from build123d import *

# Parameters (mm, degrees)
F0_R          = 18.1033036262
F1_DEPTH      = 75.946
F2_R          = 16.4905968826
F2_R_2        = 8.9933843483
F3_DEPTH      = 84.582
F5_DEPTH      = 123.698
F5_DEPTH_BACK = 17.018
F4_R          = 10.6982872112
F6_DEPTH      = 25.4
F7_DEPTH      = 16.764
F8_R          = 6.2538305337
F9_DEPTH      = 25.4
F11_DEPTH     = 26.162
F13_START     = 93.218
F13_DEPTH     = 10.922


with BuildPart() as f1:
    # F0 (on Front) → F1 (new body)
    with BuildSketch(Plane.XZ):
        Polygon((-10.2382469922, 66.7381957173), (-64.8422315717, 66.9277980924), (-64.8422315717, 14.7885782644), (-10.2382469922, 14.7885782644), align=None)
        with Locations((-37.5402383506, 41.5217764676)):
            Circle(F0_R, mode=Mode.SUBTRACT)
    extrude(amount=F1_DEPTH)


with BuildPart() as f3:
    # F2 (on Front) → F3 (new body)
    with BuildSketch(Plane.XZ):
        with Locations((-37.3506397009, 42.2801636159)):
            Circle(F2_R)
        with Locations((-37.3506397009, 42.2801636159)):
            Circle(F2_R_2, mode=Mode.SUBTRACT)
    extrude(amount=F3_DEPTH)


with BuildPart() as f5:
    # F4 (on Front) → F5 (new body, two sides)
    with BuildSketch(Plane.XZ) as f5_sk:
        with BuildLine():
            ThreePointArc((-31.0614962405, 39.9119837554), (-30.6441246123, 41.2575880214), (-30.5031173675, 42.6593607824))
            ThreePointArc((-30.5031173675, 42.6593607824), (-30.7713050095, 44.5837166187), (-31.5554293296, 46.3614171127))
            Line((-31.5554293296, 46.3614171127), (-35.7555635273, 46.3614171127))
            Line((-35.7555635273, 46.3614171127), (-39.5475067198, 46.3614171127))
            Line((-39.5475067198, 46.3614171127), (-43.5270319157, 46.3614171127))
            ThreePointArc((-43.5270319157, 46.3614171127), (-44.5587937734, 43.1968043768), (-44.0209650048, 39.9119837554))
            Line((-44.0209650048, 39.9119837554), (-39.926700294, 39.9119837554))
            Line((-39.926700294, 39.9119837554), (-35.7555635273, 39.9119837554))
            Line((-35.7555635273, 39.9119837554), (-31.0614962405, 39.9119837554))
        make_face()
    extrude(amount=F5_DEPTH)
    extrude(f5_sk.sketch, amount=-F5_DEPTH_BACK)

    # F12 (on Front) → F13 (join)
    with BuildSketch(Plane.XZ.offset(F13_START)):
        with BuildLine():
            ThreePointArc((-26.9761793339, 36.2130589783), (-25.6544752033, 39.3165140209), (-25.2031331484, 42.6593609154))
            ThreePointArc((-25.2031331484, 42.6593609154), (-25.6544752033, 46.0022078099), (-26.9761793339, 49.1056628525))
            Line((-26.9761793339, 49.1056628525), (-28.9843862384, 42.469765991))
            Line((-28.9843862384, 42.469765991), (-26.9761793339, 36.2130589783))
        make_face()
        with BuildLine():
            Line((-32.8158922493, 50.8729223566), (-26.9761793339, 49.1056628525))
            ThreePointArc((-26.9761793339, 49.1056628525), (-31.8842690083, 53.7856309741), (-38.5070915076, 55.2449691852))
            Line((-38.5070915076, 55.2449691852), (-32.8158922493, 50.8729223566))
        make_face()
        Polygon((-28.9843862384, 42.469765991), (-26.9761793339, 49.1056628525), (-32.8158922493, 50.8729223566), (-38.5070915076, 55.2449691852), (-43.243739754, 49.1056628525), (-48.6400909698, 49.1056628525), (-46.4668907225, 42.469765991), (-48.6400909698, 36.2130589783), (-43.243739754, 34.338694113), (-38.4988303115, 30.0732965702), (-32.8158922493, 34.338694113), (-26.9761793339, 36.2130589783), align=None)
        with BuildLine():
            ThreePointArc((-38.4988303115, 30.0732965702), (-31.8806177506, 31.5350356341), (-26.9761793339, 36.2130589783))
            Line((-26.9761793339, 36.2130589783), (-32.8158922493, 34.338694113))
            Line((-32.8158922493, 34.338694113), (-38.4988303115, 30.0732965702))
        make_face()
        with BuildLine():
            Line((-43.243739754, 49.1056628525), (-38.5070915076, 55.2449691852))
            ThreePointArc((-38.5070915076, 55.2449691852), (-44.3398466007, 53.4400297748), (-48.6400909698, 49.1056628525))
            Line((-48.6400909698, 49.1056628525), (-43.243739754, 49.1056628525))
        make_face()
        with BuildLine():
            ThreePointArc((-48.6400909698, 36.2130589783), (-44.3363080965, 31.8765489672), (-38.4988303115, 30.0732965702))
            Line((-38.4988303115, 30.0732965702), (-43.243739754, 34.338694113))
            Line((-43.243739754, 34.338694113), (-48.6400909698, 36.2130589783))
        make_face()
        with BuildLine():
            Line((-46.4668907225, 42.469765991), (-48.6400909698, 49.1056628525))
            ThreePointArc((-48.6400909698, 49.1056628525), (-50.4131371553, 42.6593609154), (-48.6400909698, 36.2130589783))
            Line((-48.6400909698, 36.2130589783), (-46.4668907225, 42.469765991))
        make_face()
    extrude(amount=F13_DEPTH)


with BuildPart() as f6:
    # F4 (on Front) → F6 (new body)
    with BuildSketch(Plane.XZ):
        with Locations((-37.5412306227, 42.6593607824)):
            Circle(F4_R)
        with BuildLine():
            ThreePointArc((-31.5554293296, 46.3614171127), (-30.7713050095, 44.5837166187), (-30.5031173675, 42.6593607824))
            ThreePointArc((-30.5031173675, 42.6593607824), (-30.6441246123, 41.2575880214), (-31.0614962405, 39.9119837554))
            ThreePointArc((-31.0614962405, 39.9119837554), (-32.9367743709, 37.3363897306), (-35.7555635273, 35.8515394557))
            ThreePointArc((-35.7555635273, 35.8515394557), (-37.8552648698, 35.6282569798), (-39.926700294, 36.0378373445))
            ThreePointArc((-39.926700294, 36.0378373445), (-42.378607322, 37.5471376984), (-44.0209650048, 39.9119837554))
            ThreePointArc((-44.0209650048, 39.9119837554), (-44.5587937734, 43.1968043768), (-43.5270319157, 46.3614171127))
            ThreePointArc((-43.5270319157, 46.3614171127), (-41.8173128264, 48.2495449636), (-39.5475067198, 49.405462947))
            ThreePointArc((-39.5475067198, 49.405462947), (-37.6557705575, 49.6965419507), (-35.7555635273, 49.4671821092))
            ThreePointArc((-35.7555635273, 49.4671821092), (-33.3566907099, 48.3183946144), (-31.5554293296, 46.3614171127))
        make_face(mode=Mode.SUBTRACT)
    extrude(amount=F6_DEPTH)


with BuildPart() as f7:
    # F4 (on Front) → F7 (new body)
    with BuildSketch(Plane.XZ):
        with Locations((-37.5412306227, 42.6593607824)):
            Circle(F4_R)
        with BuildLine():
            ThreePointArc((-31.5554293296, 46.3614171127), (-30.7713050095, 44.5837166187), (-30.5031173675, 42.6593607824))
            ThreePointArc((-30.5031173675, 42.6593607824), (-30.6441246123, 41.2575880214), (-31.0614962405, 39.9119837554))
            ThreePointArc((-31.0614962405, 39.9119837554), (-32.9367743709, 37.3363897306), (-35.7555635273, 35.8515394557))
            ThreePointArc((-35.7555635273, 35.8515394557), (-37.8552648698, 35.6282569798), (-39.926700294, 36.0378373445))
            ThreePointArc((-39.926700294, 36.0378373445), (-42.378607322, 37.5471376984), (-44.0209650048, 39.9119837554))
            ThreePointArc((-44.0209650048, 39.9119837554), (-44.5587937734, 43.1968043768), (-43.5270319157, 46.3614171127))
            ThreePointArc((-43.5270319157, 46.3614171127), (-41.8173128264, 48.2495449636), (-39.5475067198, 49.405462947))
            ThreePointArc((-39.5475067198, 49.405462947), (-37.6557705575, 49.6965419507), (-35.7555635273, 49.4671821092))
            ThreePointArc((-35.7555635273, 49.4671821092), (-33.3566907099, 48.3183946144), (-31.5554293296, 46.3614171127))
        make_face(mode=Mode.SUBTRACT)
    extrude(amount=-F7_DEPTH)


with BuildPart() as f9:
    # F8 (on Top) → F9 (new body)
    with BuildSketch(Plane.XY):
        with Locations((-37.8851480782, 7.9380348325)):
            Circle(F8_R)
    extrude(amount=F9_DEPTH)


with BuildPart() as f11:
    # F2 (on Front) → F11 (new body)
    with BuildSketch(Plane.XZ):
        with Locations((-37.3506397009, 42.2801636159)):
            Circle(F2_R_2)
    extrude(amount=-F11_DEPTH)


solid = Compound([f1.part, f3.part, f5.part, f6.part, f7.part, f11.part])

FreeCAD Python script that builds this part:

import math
import FreeCAD as App
import Part
import Sketcher
Q = App.Units.Quantity


def add_polygon(sketch, points):
    """Adds a closed chain of lines whose ends are joined by coincident constraints."""
    first, n = sketch.GeometryCount, len(points)
    for a, b in zip(points, points[1:] + points[:1]):
        sketch.addGeometry(Part.LineSegment(App.Vector(*a, 0), App.Vector(*b, 0)), False)
    for i in range(n):
        sketch.addConstraint(Sketcher.Constraint("Coincident", first + i, 2, first + (i + 1) % n, 1))

doc = App.newDocument("Part")
body = doc.addObject("PartDesign::Body", "Body")

sketch1 = body.newObject("Sketcher::SketchObject", "Sketch")
sketch1.AttachmentSupport = (doc.getObject("XZ_Plane"), [""])
sketch1.MapMode = "FlatFace"
add_polygon(sketch1, [(-10, 67), (-65, 67), (-65, 15), (-10, 15)])
sketch1.addGeometry(Part.Circle(App.Vector(-38, 42, 0), App.Vector(0, 0, 1), 18), False)
sketch1.addConstraint([
    Sketcher.Constraint("Vertical", 1),
    Sketcher.Constraint("Horizontal", 2),
    Sketcher.Constraint("Vertical", 3),
    Sketcher.Constraint("Diameter", 4, Q("36.206607 mm")),
    Sketcher.Constraint("DistanceY", 1, 2, 1, 1, Q("52.13922 mm")),
    Sketcher.Constraint("DistanceY", -1, 1, 0, 2, Q("66.927798 mm")),
    Sketcher.Constraint("DistanceY", 1, 2, 4, 3, Q("26.733198 mm")),
    Sketcher.Constraint("DistanceX", 2, 1, 2, 2, Q("54.603985 mm")),
    Sketcher.Constraint("DistanceY", 3, 1, 3, 2, Q("51.949617 mm")),
    Sketcher.Constraint("DistanceX", 4, 3, -1, 1, Q("37.540238 mm")),
    Sketcher.Constraint("DistanceX", 0, 2, -1, 1, Q("64.842232 mm")),
])
pad1 = body.newObject("PartDesign::Pad", "Pad")
pad1.Profile = sketch1
pad1.Length = Q("2.99 in")
body2 = doc.addObject("PartDesign::Body", "Body001")

sketch2 = body2.newObject("Sketcher::SketchObject", "Sketch001")
sketch2.AttachmentSupport = (doc.getObject("XZ_Plane001"), [""])
sketch2.MapMode = "FlatFace"
sketch2.addGeometry([
    Part.Circle(App.Vector(-37, 42, 0), App.Vector(0, 0, 1), 16),
    Part.Circle(App.Vector(-37, 42, 0), App.Vector(0, 0, 1), 9),
], False)
sketch2.addConstraint([
    Sketcher.Constraint("Coincident", 1, 3, 0, 3),
    Sketcher.Constraint("Diameter", 1, Q("17.986769 mm")),
    Sketcher.Constraint("Diameter", 0, Q("32.981194 mm")),
    Sketcher.Constraint("DistanceX", 0, 3, -1, 1, Q("37.35064 mm")),
    Sketcher.Constraint("DistanceY", -1, 1, 0, 3, Q("42.280164 mm")),
])
pad2 = body2.newObject("PartDesign::Pad", "Pad001")
pad2.Profile = sketch2
pad2.Length = Q("3.33 in")
body3 = doc.addObject("PartDesign::Body", "Body002")

sketch3 = body3.newObject("Sketcher::SketchObject", "Sketch002")
sketch3.AttachmentSupport = (doc.getObject("XZ_Plane002"), [""])
sketch3.MapMode = "FlatFace"
sketch3.addGeometry([
    Part.ArcOfCircle(Part.Circle(App.Vector(-37.5, 42.7, 0), App.Vector(0, 0, 1), 7), math.radians(-23), math.radians(0)),
    Part.ArcOfCircle(Part.Circle(App.Vector(-37.5, 42.7, 0), App.Vector(0, 0, 1), 7), math.radians(0), math.radians(32)),
    Part.LineSegment(App.Vector(-31.6, 46.4, 0), App.Vector(-43.5, 46.4, 0)),
    Part.ArcOfCircle(Part.Circle(App.Vector(-37.5, 42.7, 0), App.Vector(0, 0, 1), 7), math.radians(148), math.radians(203)),
    Part.LineSegment(App.Vector(-44, 39.9, 0), App.Vector(-31.1, 39.9, 0)),
], False)
sketch3.addConstraint([
    Sketcher.Constraint("Tangent", 0, 2, 1, 1),
    Sketcher.Constraint("Coincident", 1, 2, 2, 1),
    Sketcher.Constraint("Coincident", 2, 2, 3, 1),
    Sketcher.Constraint("Coincident", 3, 2, 4, 1),
    Sketcher.Constraint("Coincident", 4, 2, 0, 1),
    Sketcher.Constraint("Horizontal", 2),
    Sketcher.Constraint("Horizontal", 4),
    Sketcher.Constraint("Coincident", 3, 3, 0, 3),
    Sketcher.Constraint("Equal", 0, 1),
    Sketcher.Constraint("Equal", 1, 3),
    Sketcher.Constraint("Horizontal", 3, 3, 0, 2),
    Sketcher.Constraint("Radius", 0, Q("7.038113 mm")),
    Sketcher.Constraint("DistanceX", 4, 1, 4, 2, Q("12.959469 mm")),
    Sketcher.Constraint("DistanceX", 1, 3, 1, 2, Q("5.985801 mm")),
    Sketcher.Constraint("DistanceX", 0, 3, -1, 1, Q("37.541231 mm")),
    Sketcher.Constraint("DistanceY", -1, 1, 0, 3, Q("42.659361 mm")),
])
pad3 = body3.newObject("PartDesign::Pad", "Pad002")
pad3.Profile = sketch3
pad3.Type = "TwoLengths"
pad3.Length = Q("4.87 in")
pad3.Length2 = Q("0.67 in")

sketch4 = body3.newObject("Sketcher::SketchObject", "Sketch003")
sketch4.AttachmentSupport = (doc.getObject("XZ_Plane002"), [""])
sketch4.MapMode = "FlatFace"
sketch4.AttachmentOffset = App.Placement(App.Vector(0, 0, 3.67 * 25.4), App.Rotation())
sketch4.addGeometry([
    Part.ArcOfCircle(Part.Circle(App.Vector(-38, 43, 0), App.Vector(0, 0, 1), 13), math.radians(-31), math.radians(0)),
    Part.ArcOfCircle(Part.Circle(App.Vector(-38, 43, 0), App.Vector(0, 0, 1), 13), math.radians(0), math.radians(31)),
    Part.ArcOfCircle(Part.Circle(App.Vector(-38, 43, 0), App.Vector(0, 0, 1), 13), math.radians(31), math.radians(93)),
    Part.ArcOfCircle(Part.Circle(App.Vector(-38, 43, 0), App.Vector(0, 0, 1), 13), math.radians(93), math.radians(149)),
    Part.ArcOfCircle(Part.Circle(App.Vector(-38, 43, 0), App.Vector(0, 0, 1), 13), math.radians(149), math.radians(211)),
    Part.ArcOfCircle(Part.Circle(App.Vector(-38, 43, 0), App.Vector(0, 0, 1), 13), math.radians(-149), math.radians(-93)),
    Part.ArcOfCircle(Part.Circle(App.Vector(-38, 43, 0), App.Vector(0, 0, 1), 13), math.radians(-93), math.radians(-31)),
], False)
sketch4.addConstraint([
    Sketcher.Constraint("Tangent", 0, 2, 1, 1),
    Sketcher.Constraint("Tangent", 1, 2, 2, 1),
    Sketcher.Constraint("Tangent", 2, 2, 3, 1),
    Sketcher.Constraint("Tangent", 3, 2, 4, 1),
    Sketcher.Constraint("Tangent", 4, 2, 5, 1),
    Sketcher.Constraint("Tangent", 5, 2, 6, 1),
    Sketcher.Constraint("Tangent", 6, 2, 0, 1),
    Sketcher.Constraint("Coincident", 2, 3, 0, 3),
    Sketcher.Constraint("Coincident", 4, 3, 0, 3),
    Sketcher.Constraint("Horizontal", 6, 3, 0, 2),
    Sketcher.Constraint("Horizontal", 1, 2, 3, 2),
    Sketcher.Constraint("Horizontal", 4, 2, 6, 2),
    Sketcher.Constraint("Vertical", 3, 2, 4, 2),
    Sketcher.Constraint("Radius", 0, Q("12.605002 mm")),
    Sketcher.Constraint("DistanceY", 0, 2, 1, 2, Q("6.446302 mm")),
    Sketcher.Constraint("DistanceX", 3, 2, 2, 2, Q("10.132999 mm")),
    Sketcher.Constraint("DistanceY", -1, 1, 0, 3, Q("42.659361 mm")),
    Sketcher.Constraint("DistanceX", 1, 2, -1, 1, Q("26.976179 mm")),
    Sketcher.Constraint("DistanceX", 5, 2, -1, 1, Q("38.49883 mm")),
])
pad4 = body3.newObject("PartDesign::Pad", "Pad003")
pad4.Profile = sketch4
pad4.Length = Q("0.43 in")
body4 = doc.addObject("PartDesign::Body", "Body003")

sketch5 = body4.newObject("Sketcher::SketchObject", "Sketch004")
sketch5.AttachmentSupport = (doc.getObject("XZ_Plane003"), [""])
sketch5.MapMode = "FlatFace"
sketch5.addGeometry([
    Part.Circle(App.Vector(-37.5, 42.7, 0), App.Vector(0, 0, 1), 10.7),
    Part.ArcOfCircle(Part.Circle(App.Vector(-37.5, 42.7, 0), App.Vector(0, 0, 1), 7), math.radians(32), math.radians(75)),
    Part.ArcOfCircle(Part.Circle(App.Vector(-37.5, 42.7, 0), App.Vector(0, 0, 1), 7), math.radians(0), math.radians(32)),
    Part.ArcOfCircle(Part.Circle(App.Vector(-37.5, 42.7, 0), App.Vector(0, 0, 1), 7), math.radians(-75), math.radians(0)),
    Part.ArcOfCircle(Part.Circle(App.Vector(-37.5, 42.7, 0), App.Vector(0, 0, 1), 7), math.radians(-110), math.radians(-75)),
    Part.ArcOfCircle(Part.Circle(App.Vector(-37.5, 42.7, 0), App.Vector(0, 0, 1), 7), math.radians(-157), math.radians(-110)),
    Part.ArcOfCircle(Part.Circle(App.Vector(-37.5, 42.7, 0), App.Vector(0, 0, 1), 7), math.radians(148), math.radians(203)),
    Part.ArcOfCircle(Part.Circle(App.Vector(-37.5, 42.7, 0), App.Vector(0, 0, 1), 7), math.radians(107), math.radians(148)),
    Part.ArcOfCircle(Part.Circle(App.Vector(-37.5, 42.7, 0), App.Vector(0, 0, 1), 7), math.radians(75), math.radians(107)),
], False)
sketch5.addConstraint([
    Sketcher.Constraint("Tangent", 1, 1, 2, 2),
    Sketcher.Constraint("Tangent", 2, 1, 3, 2),
    Sketcher.Constraint("Tangent", 3, 1, 4, 2),
    Sketcher.Constraint("Tangent", 4, 1, 5, 2),
    Sketcher.Constraint("Tangent", 5, 1, 6, 2),
    Sketcher.Constraint("Tangent", 6, 1, 7, 2),
    Sketcher.Constraint("Tangent", 7, 1, 8, 2),
    Sketcher.Constraint("Tangent", 8, 1, 1, 2),
    Sketcher.Constraint("Coincident", 1, 3, 0, 3),
    Sketcher.Constraint("Coincident", 3, 3, 0, 3),
    Sketcher.Constraint("Coincident", 5, 3, 0, 3),
    Sketcher.Constraint("Equal", 5, 6),
    Sketcher.Constraint("Horizontal", 8, 3, 2, 1),
    Sketcher.Constraint("Horizontal", 1, 1, 6, 1),
    Sketcher.Constraint("Vertical", 3, 1, 8, 1),
    Sketcher.Constraint("Diameter", 0, Q("21.396574 mm")),
    Sketcher.Constraint("Radius", 1, Q("7.038113 mm")),
    Sketcher.Constraint("DistanceX", 4, 1, -1, 1, Q("39.9267 mm")),
    Sketcher.Constraint("DistanceX", 1, 3, 1, 1, Q("5.985801 mm")),
    Sketcher.Constraint("DistanceX", 0, 3, -1, 1, Q("37.541231 mm")),
    Sketcher.Constraint("DistanceY", -1, 1, 0, 3, Q("42.659361 mm")),
    Sketcher.Constraint("DistanceY", -1, 1, 3, 1, Q("35.851539 mm")),
    Sketcher.Constraint("DistanceY", 7, 1, 8, 1, Q("0.061719 mm")),
    Sketcher.Constraint("DistanceX", 5, 1, -1, 1, Q("44.020965 mm")),
])
pad5 = body4.newObject("PartDesign::Pad", "Pad004")
pad5.Profile = sketch5
pad5.Length = Q("1 in")
body5 = doc.addObject("PartDesign::Body", "Body004")

sketch6 = body5.newObject("Sketcher::SketchObject", "Sketch005")
sketch6.AttachmentSupport = (doc.getObject("XZ_Plane004"), [""])
sketch6.MapMode = "FlatFace"
sketch6.addGeometry([
    Part.Circle(App.Vector(-37.5, 42.7, 0), App.Vector(0, 0, 1), 10.7),
    Part.ArcOfCircle(Part.Circle(App.Vector(-37.5, 42.7, 0), App.Vector(0, 0, 1), 7), math.radians(32), math.radians(75)),
    Part.ArcOfCircle(Part.Circle(App.Vector(-37.5, 42.7, 0), App.Vector(0, 0, 1), 7), math.radians(0), math.radians(32)),
    Part.ArcOfCircle(Part.Circle(App.Vector(-37.5, 42.7, 0), App.Vector(0, 0, 1), 7), math.radians(-75), math.radians(0)),
    Part.ArcOfCircle(Part.Circle(App.Vector(-37.5, 42.7, 0), App.Vector(0, 0, 1), 7), math.radians(-110), math.radians(-75)),
    Part.ArcOfCircle(Part.Circle(App.Vector(-37.5, 42.7, 0), App.Vector(0, 0, 1), 7), math.radians(-157), math.radians(-110)),
    Part.ArcOfCircle(Part.Circle(App.Vector(-37.5, 42.7, 0), App.Vector(0, 0, 1), 7), math.radians(148), math.radians(203)),
    Part.ArcOfCircle(Part.Circle(App.Vector(-37.5, 42.7, 0), App.Vector(0, 0, 1), 7), math.radians(107), math.radians(148)),
    Part.ArcOfCircle(Part.Circle(App.Vector(-37.5, 42.7, 0), App.Vector(0, 0, 1), 7), math.radians(75), math.radians(107)),
], False)
sketch6.addConstraint([
    Sketcher.Constraint("Tangent", 1, 1, 2, 2),
    Sketcher.Constraint("Tangent", 2, 1, 3, 2),
    Sketcher.Constraint("Tangent", 3, 1, 4, 2),
    Sketcher.Constraint("Tangent", 4, 1, 5, 2),
    Sketcher.Constraint("Tangent", 5, 1, 6, 2),
    Sketcher.Constraint("Tangent", 6, 1, 7, 2),
    Sketcher.Constraint("Tangent", 7, 1, 8, 2),
    Sketcher.Constraint("Tangent", 8, 1, 1, 2),
    Sketcher.Constraint("Coincident", 1, 3, 0, 3),
    Sketcher.Constraint("Coincident", 3, 3, 0, 3),
    Sketcher.Constraint("Coincident", 5, 3, 0, 3),
    Sketcher.Constraint("Equal", 5, 6),
    Sketcher.Constraint("Horizontal", 8, 3, 2, 1),
    Sketcher.Constraint("Horizontal", 1, 1, 6, 1),
    Sketcher.Constraint("Vertical", 3, 1, 8, 1),
    Sketcher.Constraint("Diameter", 0, Q("21.396574 mm")),
    Sketcher.Constraint("Radius", 1, Q("7.038113 mm")),
    Sketcher.Constraint("DistanceX", 4, 1, -1, 1, Q("39.9267 mm")),
    Sketcher.Constraint("DistanceX", 1, 3, 1, 1, Q("5.985801 mm")),
    Sketcher.Constraint("DistanceX", 0, 3, -1, 1, Q("37.541231 mm")),
    Sketcher.Constraint("DistanceY", -1, 1, 0, 3, Q("42.659361 mm")),
    Sketcher.Constraint("DistanceY", -1, 1, 3, 1, Q("35.851539 mm")),
    Sketcher.Constraint("DistanceY", 7, 1, 8, 1, Q("0.061719 mm")),
    Sketcher.Constraint("DistanceX", 5, 1, -1, 1, Q("44.020965 mm")),
])
pad6 = body5.newObject("PartDesign::Pad", "Pad005")
pad6.Profile = sketch6
pad6.Length = Q("0.66 in")
pad6.Reversed = True
body6 = doc.addObject("PartDesign::Body", "Body005")

sketch7 = body6.newObject("Sketcher::SketchObject", "Sketch006")
sketch7.AttachmentSupport = (doc.getObject("XY_Plane005"), [""])
sketch7.MapMode = "FlatFace"
sketch7.addGeometry(Part.Circle(App.Vector(-38, 8, 0), App.Vector(0, 0, 1), 6), False)
sketch7.addConstraint([
    Sketcher.Constraint("Diameter", 0, Q("12.507661 mm")),
    Sketcher.Constraint("DistanceX", 0, 3, -1, 1, Q("37.885148 mm")),
    Sketcher.Constraint("DistanceY", -1, 1, 0, 3, Q("7.938035 mm")),
])
pad7 = body6.newObject("PartDesign::Pad", "Pad006")
pad7.Profile = sketch7
pad7.Length = Q("1 in")
body7 = doc.addObject("PartDesign::Body", "Body006")

sketch8 = body7.newObject("Sketcher::SketchObject", "Sketch007")
sketch8.AttachmentSupport = (doc.getObject("XZ_Plane006"), [""])
sketch8.MapMode = "FlatFace"
sketch8.addGeometry(Part.Circle(App.Vector(-37, 42, 0), App.Vector(0, 0, 1), 9), False)
sketch8.addConstraint([
    Sketcher.Constraint("Diameter", 0, Q("17.986769 mm")),
    Sketcher.Constraint("DistanceX", 0, 3, -1, 1, Q("37.35064 mm")),
    Sketcher.Constraint("DistanceY", -1, 1, 0, 3, Q("42.280164 mm")),
])
pad8 = body7.newObject("PartDesign::Pad", "Pad007")
pad8.Profile = sketch8
pad8.Length = Q("1.03 in")
pad8.Reversed = True
body6.Visibility = False

doc.recompute()
